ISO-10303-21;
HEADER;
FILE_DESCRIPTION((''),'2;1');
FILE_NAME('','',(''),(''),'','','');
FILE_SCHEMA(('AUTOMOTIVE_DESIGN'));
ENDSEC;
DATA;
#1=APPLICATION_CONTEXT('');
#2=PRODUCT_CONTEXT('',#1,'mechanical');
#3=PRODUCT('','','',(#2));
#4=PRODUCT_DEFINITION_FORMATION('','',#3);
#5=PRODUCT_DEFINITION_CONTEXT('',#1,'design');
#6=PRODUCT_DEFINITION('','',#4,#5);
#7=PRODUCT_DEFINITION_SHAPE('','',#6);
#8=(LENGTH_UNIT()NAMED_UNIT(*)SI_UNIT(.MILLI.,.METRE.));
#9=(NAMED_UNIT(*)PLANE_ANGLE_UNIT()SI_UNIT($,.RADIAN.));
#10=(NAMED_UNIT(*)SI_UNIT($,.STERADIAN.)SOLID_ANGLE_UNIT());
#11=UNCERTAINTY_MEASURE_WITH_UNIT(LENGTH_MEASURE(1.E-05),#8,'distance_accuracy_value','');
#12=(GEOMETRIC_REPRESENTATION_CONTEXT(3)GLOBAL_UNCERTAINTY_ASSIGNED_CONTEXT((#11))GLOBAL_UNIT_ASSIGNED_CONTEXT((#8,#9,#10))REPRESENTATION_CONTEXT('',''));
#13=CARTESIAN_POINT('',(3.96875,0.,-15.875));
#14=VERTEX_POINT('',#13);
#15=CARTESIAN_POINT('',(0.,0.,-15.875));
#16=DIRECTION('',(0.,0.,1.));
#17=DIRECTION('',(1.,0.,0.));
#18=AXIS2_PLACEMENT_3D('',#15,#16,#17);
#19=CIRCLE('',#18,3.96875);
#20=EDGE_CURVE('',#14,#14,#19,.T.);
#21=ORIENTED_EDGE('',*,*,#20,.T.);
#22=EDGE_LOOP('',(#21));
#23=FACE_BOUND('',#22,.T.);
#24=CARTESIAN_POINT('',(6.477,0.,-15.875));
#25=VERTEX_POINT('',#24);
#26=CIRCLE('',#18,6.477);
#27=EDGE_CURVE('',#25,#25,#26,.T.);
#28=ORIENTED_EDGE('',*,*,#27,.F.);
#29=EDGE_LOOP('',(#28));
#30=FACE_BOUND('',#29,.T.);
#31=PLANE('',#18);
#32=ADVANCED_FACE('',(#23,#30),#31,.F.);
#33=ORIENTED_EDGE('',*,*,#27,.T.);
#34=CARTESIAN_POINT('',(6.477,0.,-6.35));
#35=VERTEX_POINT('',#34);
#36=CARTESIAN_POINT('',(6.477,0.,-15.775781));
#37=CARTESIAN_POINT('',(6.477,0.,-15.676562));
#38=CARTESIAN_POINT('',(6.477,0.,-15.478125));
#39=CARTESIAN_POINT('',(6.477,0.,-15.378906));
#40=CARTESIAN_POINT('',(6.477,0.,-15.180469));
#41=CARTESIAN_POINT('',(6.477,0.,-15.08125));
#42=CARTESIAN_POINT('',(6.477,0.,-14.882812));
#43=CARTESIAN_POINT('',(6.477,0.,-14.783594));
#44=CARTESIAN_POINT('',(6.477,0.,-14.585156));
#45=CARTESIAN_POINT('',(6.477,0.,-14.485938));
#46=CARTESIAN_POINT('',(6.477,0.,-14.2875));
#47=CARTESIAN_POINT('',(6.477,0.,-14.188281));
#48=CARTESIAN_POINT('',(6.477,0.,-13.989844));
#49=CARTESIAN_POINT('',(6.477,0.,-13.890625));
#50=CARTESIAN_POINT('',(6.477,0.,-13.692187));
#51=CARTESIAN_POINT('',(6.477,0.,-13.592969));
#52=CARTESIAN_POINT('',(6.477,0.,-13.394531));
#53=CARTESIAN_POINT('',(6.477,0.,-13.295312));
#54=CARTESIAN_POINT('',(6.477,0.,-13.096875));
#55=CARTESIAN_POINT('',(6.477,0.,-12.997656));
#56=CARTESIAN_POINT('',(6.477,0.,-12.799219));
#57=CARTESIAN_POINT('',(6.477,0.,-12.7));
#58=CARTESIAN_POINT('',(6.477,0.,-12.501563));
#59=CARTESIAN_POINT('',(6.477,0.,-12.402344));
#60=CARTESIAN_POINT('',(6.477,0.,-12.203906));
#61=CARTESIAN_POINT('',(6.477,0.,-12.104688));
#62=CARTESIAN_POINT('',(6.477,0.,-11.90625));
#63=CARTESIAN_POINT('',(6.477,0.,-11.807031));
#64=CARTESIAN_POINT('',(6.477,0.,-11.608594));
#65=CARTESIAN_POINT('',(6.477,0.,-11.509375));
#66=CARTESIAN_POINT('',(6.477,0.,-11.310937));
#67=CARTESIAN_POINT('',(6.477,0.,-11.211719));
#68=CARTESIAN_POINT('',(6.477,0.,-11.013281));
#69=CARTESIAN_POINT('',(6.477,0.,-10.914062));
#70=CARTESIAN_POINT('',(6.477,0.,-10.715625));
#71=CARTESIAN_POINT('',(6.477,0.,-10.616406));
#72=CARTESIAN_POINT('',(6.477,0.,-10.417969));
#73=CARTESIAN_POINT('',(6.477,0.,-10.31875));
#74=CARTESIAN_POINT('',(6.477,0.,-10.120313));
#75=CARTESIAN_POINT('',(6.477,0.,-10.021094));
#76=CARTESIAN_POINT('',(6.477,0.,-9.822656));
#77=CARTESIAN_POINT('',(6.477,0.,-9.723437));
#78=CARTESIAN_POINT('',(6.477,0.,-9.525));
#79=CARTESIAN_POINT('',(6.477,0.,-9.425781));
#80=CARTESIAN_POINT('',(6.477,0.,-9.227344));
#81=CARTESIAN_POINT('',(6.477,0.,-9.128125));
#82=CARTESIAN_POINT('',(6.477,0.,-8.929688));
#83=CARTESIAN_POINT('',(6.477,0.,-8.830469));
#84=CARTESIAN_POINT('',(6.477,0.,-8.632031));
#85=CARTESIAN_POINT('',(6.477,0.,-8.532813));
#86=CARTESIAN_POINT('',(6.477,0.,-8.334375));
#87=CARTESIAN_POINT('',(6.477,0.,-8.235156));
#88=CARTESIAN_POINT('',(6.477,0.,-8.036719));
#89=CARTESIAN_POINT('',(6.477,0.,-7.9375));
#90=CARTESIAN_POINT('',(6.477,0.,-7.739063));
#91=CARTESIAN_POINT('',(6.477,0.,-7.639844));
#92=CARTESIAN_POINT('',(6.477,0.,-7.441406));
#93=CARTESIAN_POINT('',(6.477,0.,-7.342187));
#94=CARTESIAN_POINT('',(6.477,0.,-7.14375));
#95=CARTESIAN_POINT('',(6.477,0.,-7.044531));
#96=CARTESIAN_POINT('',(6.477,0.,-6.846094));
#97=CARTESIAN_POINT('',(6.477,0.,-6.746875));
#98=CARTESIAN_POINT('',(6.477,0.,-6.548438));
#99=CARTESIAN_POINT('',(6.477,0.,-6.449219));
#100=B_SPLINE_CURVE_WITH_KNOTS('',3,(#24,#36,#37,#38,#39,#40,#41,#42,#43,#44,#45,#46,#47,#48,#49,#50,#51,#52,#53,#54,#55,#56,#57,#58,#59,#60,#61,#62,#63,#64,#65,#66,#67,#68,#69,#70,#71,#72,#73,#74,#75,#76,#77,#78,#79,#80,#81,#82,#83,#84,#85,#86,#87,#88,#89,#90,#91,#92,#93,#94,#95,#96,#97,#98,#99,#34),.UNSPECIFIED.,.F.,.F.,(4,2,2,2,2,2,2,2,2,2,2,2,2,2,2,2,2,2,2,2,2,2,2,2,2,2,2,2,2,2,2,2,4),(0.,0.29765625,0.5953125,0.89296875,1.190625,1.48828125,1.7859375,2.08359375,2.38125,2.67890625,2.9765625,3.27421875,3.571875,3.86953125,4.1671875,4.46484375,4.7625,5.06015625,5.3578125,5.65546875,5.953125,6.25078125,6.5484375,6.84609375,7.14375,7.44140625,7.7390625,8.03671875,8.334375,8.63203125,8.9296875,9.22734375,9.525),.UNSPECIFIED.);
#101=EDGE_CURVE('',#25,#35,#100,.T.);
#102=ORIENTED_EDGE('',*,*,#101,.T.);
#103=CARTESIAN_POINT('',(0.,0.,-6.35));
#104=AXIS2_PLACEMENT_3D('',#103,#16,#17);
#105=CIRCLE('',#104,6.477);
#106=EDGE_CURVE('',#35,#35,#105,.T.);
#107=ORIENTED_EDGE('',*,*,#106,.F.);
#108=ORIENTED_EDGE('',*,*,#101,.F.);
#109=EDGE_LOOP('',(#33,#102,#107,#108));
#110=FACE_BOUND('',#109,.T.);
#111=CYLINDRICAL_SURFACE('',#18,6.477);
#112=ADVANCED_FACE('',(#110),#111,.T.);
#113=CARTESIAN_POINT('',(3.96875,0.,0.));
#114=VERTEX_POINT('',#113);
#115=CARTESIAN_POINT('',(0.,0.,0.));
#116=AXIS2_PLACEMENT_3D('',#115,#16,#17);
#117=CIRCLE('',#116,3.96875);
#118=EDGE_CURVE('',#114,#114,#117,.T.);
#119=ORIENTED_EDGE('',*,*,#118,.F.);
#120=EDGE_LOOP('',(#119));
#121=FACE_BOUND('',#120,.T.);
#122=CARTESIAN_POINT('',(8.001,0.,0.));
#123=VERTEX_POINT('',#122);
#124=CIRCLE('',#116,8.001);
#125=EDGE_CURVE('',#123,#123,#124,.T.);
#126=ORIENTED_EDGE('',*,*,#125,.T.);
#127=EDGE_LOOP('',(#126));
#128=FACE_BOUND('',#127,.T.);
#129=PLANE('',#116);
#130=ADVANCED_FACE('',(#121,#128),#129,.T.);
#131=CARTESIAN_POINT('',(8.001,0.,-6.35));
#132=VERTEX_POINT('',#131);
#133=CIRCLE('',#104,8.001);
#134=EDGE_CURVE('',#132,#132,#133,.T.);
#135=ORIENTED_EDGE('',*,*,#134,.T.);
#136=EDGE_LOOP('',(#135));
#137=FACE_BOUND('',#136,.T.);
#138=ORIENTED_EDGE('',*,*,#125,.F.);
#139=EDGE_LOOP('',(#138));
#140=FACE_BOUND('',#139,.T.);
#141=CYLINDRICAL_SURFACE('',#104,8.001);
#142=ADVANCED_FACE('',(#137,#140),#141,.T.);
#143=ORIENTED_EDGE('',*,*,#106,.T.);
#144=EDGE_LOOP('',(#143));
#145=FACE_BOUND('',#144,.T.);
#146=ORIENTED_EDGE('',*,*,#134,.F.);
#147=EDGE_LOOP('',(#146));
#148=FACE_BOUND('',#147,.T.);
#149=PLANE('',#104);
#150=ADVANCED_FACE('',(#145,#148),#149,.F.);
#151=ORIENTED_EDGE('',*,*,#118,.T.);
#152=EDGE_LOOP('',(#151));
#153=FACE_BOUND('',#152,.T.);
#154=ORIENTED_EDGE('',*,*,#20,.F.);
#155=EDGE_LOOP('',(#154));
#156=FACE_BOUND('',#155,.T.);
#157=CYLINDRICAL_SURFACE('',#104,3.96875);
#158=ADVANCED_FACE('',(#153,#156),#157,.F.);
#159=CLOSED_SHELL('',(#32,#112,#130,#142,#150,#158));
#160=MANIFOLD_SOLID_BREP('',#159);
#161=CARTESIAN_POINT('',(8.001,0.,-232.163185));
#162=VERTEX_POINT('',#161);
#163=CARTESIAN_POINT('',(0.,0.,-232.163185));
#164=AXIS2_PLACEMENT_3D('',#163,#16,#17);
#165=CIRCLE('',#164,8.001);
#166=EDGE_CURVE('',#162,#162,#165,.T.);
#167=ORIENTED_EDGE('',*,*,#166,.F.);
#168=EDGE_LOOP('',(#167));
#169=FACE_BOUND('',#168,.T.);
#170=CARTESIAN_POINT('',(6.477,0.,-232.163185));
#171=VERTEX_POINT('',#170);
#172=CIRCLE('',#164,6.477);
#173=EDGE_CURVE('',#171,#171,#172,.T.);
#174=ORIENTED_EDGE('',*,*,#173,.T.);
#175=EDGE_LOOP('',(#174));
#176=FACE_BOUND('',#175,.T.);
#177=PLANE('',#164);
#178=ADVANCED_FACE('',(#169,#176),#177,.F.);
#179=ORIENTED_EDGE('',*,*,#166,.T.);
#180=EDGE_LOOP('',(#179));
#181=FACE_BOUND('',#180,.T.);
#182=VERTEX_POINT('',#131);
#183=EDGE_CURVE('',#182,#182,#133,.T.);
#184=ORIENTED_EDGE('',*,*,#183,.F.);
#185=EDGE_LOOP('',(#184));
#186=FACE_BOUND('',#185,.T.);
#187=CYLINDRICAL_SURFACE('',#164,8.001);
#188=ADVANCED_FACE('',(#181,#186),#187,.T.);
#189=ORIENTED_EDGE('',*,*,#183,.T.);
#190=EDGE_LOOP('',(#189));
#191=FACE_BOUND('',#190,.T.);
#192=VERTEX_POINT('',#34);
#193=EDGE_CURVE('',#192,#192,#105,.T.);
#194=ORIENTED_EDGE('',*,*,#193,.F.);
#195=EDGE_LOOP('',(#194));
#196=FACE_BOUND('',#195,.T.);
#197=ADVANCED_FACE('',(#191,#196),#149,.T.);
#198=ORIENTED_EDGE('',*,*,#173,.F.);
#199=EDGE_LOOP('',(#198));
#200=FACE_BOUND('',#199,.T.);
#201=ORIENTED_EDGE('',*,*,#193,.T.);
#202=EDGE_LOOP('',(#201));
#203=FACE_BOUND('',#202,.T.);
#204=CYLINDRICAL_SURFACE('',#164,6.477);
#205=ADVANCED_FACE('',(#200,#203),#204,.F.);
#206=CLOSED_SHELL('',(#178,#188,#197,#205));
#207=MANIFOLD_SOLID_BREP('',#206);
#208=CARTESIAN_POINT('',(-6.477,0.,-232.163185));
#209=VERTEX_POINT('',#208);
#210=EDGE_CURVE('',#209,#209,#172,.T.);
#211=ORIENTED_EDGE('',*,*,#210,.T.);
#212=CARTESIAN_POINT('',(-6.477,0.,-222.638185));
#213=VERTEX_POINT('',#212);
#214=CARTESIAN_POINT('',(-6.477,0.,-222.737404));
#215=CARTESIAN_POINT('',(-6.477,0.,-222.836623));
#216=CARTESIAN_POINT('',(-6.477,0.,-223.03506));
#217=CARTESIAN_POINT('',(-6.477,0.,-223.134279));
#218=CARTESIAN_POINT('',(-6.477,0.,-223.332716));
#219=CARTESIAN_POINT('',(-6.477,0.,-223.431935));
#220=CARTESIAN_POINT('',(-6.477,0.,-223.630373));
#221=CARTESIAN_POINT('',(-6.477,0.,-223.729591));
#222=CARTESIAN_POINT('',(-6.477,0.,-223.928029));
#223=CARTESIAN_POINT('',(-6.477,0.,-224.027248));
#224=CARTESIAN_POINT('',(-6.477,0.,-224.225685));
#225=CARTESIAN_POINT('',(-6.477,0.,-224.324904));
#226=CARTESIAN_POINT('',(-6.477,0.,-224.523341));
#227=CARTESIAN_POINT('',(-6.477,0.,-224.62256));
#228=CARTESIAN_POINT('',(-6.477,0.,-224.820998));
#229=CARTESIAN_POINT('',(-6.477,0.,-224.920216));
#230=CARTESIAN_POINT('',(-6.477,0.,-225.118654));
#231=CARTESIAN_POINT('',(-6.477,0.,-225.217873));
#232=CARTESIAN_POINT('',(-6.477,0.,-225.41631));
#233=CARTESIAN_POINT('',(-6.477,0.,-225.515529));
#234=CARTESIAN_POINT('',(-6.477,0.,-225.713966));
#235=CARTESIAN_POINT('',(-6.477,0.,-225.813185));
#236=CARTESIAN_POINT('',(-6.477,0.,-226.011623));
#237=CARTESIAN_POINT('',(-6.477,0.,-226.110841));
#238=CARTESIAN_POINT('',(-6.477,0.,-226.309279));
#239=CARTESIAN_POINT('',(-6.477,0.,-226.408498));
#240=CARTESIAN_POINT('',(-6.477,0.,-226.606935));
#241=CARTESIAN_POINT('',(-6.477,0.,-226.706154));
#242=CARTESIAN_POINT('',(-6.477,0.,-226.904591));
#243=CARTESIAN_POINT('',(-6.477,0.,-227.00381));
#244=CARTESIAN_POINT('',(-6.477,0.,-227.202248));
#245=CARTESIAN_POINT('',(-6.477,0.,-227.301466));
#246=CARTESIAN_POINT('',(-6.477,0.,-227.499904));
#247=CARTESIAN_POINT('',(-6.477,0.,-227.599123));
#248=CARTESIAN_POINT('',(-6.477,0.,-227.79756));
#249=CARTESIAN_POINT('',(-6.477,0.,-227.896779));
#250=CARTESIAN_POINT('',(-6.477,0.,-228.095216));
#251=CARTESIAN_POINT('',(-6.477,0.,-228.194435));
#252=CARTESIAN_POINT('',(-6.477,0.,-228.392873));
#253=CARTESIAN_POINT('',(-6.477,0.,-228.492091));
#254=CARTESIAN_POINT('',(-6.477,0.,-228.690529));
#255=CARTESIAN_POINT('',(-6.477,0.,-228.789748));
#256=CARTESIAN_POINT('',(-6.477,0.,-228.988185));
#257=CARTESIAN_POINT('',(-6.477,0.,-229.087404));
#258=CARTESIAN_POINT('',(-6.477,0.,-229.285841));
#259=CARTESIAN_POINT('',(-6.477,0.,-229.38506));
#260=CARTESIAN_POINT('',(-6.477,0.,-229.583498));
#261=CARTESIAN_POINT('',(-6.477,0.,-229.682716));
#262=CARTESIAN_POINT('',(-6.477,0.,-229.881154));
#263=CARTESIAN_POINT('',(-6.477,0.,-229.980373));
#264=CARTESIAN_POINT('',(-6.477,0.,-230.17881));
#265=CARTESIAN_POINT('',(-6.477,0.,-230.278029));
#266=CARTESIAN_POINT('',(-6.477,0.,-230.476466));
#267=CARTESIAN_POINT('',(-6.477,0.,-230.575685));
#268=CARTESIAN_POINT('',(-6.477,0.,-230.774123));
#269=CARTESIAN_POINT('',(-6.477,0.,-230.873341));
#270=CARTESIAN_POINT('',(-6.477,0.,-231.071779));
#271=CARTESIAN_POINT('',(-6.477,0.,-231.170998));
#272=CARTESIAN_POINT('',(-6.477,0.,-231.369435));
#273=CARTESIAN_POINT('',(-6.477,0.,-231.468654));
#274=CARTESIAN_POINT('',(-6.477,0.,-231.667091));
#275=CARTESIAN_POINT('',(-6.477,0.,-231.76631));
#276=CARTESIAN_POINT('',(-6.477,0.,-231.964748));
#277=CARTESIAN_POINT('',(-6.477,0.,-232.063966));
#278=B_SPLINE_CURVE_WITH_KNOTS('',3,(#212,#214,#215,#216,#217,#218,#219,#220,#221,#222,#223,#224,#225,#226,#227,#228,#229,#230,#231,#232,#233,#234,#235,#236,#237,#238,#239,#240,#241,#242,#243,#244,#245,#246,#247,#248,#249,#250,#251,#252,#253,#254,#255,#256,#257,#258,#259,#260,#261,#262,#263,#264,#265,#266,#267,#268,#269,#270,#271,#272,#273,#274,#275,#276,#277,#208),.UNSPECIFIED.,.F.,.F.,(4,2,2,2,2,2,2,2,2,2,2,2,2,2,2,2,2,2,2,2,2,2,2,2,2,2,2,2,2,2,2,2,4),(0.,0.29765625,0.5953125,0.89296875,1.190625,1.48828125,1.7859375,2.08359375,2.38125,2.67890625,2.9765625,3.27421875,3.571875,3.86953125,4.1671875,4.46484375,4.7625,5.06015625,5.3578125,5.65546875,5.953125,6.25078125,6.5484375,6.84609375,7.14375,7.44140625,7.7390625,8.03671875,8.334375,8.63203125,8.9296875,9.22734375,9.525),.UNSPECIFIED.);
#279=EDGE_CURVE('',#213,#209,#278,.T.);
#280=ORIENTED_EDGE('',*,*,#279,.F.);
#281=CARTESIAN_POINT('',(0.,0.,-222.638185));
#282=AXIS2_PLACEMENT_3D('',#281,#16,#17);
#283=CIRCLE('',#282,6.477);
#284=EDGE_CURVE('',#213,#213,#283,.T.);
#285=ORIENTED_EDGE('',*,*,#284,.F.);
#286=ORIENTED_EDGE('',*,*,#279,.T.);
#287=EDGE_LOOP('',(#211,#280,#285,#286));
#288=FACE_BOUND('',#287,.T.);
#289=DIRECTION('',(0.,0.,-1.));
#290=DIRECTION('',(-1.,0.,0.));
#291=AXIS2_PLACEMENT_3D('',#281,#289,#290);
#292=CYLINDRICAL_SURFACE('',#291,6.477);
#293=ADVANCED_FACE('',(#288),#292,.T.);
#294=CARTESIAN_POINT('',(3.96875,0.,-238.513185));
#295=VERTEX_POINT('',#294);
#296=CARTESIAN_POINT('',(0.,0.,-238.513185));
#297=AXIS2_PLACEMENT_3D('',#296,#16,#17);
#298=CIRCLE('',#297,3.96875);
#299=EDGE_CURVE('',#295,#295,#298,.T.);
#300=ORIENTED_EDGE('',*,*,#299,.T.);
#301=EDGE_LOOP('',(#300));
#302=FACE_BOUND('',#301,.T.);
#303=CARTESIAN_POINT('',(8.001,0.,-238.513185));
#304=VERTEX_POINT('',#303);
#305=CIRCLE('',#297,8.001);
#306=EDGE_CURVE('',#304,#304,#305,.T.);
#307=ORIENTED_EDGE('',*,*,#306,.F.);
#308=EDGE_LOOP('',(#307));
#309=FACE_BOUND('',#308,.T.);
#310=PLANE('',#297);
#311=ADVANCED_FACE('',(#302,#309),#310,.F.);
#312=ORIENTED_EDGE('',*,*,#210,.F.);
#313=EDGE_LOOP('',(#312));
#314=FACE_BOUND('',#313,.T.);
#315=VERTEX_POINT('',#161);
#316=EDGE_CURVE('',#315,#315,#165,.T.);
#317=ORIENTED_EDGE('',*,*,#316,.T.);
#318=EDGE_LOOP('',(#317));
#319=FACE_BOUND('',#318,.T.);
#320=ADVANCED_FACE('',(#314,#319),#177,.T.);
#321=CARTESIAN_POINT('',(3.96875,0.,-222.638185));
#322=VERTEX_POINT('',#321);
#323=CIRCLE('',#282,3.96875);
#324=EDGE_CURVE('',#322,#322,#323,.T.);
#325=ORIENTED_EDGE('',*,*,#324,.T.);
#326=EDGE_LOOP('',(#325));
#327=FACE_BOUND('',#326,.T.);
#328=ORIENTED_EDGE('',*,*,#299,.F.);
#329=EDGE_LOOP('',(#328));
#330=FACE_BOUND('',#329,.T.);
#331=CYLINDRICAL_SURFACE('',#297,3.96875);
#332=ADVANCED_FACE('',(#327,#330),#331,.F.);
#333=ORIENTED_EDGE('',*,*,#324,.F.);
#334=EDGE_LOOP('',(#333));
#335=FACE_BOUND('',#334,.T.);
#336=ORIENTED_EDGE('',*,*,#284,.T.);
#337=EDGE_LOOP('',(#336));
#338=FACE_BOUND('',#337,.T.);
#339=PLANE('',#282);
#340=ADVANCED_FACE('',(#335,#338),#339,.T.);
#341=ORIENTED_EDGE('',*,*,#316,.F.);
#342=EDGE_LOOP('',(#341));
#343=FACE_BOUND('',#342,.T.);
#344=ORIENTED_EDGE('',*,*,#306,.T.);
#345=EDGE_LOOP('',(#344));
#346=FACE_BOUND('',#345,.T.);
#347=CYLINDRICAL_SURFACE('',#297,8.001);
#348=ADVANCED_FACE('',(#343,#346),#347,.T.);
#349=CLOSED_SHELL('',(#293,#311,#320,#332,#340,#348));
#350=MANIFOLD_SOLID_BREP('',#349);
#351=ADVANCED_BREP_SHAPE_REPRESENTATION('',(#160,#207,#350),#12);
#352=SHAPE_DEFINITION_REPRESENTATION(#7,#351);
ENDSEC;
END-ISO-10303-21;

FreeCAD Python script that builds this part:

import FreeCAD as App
import Part
import Sketcher

V = App.Vector
Q = App.Units.Quantity

doc = App.newDocument("Part")
body = doc.addObject("PartDesign::Body", "Body")

# Sketch on XY plane
sketch1 = body.newObject("Sketcher::SketchObject", "Sketch")
sketch1.AttachmentSupport = (doc.getObject("XY_Plane"), [""])
sketch1.MapMode = "FlatFace"
sketch1.addGeometry([
    Part.Circle(V(0, 0, 0), V(0, 0, 1), 8),
    Part.Circle(V(0, 0, 0), V(0, 0, 1), 4),
], False)
sketch1.addConstraint([
    Sketcher.Constraint("Coincident", 0, 3, -1, 1),
    Sketcher.Constraint("Coincident", 1, 3, -1, 1),
    Sketcher.Constraint("Diameter", 0, Q("0.63 in")),
    Sketcher.Constraint("Diameter", 1, Q("0.3125 in")),
])
pad1 = body.newObject("PartDesign::Pad", "Pad")
pad1.Profile = sketch1
pad1.Length = Q("0.25 in")
pad1.Reversed = True

# Sketch on XY plane
sketch2 = body.newObject("Sketcher::SketchObject", "Sketch001")
sketch2.AttachmentSupport = (doc.getObject("XY_Plane"), [""])
sketch2.MapMode = "FlatFace"
sketch2.AttachmentOffset = App.Placement(V(0, 0, -0.25 * 25.4), App.Rotation())
sketch2.addGeometry([
    Part.Circle(V(0, 0, 0), V(0, 0, 1), 6.5),
    Part.Circle(V(0, 0, 0), V(0, 0, 1), 4),
], False)
sketch2.addConstraint([
    Sketcher.Constraint("Coincident", 0, 3, -1, 1),
    Sketcher.Constraint("Coincident", 1, 3, -1, 1),
    Sketcher.Constraint("Diameter", 0, Q("0.51 in")),
    Sketcher.Constraint("Diameter", 1, Q("0.3125 in")),
])
pad2 = body.newObject("PartDesign::Pad", "Pad001")
pad2.Profile = sketch2
pad2.Length = Q("0.375 in")
pad2.Reversed = True
body2 = doc.addObject("PartDesign::Body", "Body001")

# Sketch on XY plane
sketch3 = body2.newObject("Sketcher::SketchObject", "Sketch002")
sketch3.AttachmentSupport = (doc.getObject("XY_Plane001"), [""])
sketch3.MapMode = "FlatFace"
sketch3.AttachmentOffset = App.Placement(V(0, 0, -0.25 * 25.4), App.Rotation())
sketch3.addGeometry([
    Part.Circle(V(0, 0, 0), V(0, 0, 1), 8),
    Part.Circle(V(0, 0, 0), V(0, 0, 1), 6),
], False)
sketch3.addConstraint([
    Sketcher.Constraint("Coincident", 0, 3, -1, 1),
    Sketcher.Constraint("Coincident", 1, 3, -1, 1),
    Sketcher.Constraint("Diameter", 0, Q("0.63 in")),
    Sketcher.Constraint("Diameter", 1, Q("0.51 in")),
])
pad3 = body2.newObject("PartDesign::Pad", "Pad002")
pad3.Profile = sketch3
pad3.Length = 225.813185
pad3.Reversed = True
body3 = doc.addObject("PartDesign::Body", "Body002")

# Sketch on XY plane
sketch4 = body3.newObject("Sketcher::SketchObject", "Sketch003")
sketch4.AttachmentSupport = (doc.getObject("XY_Plane002"), [""])
sketch4.MapMode = "FlatFace"
sketch4.AttachmentOffset = App.Placement(V(0, 0, -232.163185), App.Rotation())
sketch4.addGeometry([
    Part.Circle(V(0, 0, 0), V(0, 0, 1), 6.5),
    Part.Circle(V(0, 0, 0), V(0, 0, 1), 4),
], False)
sketch4.addConstraint([
    Sketcher.Constraint("Coincident", 0, 3, -1, 1),
    Sketcher.Constraint("Coincident", 1, 3, -1, 1),
    Sketcher.Constraint("Diameter", 0, Q("0.51 in")),
    Sketcher.Constraint("Diameter", 1, Q("0.3125 in")),
])
pad4 = body3.newObject("PartDesign::Pad", "Pad003")
pad4.Profile = sketch4
pad4.Length = Q("0.375 in")
body4 = doc.addObject("PartDesign::Body", "Body003")

# Sketch on XY plane
sketch5 = body4.newObject("Sketcher::SketchObject", "Sketch004")
sketch5.AttachmentSupport = (doc.getObject("XY_Plane003"), [""])
sketch5.MapMode = "FlatFace"
sketch5.AttachmentOffset = App.Placement(V(0, 0, -232.163185), App.Rotation())
sketch5.addGeometry([
    Part.Circle(V(0, 0, 0), V(0, 0, 1), 8),
    Part.Circle(V(0, 0, 0), V(0, 0, 1), 4),
], False)
sketch5.addConstraint([
    Sketcher.Constraint("Coincident", 0, 3, -1, 1),
    Sketcher.Constraint("Coincident", 1, 3, -1, 1),
    Sketcher.Constraint("Diameter", 0, Q("0.63 in")),
    Sketcher.Constraint("Diameter", 1, Q("0.3125 in")),
])
pad5 = body4.newObject("PartDesign::Pad", "Pad004")
pad5.Profile = sketch5
pad5.Length = Q("0.25 in")
pad5.Reversed = True
doc.recompute()

boolean = body4.newObject("PartDesign::Boolean", "Boolean")
boolean.Type = "Fuse"
boolean.addObjects([body3])

doc.recompute()
